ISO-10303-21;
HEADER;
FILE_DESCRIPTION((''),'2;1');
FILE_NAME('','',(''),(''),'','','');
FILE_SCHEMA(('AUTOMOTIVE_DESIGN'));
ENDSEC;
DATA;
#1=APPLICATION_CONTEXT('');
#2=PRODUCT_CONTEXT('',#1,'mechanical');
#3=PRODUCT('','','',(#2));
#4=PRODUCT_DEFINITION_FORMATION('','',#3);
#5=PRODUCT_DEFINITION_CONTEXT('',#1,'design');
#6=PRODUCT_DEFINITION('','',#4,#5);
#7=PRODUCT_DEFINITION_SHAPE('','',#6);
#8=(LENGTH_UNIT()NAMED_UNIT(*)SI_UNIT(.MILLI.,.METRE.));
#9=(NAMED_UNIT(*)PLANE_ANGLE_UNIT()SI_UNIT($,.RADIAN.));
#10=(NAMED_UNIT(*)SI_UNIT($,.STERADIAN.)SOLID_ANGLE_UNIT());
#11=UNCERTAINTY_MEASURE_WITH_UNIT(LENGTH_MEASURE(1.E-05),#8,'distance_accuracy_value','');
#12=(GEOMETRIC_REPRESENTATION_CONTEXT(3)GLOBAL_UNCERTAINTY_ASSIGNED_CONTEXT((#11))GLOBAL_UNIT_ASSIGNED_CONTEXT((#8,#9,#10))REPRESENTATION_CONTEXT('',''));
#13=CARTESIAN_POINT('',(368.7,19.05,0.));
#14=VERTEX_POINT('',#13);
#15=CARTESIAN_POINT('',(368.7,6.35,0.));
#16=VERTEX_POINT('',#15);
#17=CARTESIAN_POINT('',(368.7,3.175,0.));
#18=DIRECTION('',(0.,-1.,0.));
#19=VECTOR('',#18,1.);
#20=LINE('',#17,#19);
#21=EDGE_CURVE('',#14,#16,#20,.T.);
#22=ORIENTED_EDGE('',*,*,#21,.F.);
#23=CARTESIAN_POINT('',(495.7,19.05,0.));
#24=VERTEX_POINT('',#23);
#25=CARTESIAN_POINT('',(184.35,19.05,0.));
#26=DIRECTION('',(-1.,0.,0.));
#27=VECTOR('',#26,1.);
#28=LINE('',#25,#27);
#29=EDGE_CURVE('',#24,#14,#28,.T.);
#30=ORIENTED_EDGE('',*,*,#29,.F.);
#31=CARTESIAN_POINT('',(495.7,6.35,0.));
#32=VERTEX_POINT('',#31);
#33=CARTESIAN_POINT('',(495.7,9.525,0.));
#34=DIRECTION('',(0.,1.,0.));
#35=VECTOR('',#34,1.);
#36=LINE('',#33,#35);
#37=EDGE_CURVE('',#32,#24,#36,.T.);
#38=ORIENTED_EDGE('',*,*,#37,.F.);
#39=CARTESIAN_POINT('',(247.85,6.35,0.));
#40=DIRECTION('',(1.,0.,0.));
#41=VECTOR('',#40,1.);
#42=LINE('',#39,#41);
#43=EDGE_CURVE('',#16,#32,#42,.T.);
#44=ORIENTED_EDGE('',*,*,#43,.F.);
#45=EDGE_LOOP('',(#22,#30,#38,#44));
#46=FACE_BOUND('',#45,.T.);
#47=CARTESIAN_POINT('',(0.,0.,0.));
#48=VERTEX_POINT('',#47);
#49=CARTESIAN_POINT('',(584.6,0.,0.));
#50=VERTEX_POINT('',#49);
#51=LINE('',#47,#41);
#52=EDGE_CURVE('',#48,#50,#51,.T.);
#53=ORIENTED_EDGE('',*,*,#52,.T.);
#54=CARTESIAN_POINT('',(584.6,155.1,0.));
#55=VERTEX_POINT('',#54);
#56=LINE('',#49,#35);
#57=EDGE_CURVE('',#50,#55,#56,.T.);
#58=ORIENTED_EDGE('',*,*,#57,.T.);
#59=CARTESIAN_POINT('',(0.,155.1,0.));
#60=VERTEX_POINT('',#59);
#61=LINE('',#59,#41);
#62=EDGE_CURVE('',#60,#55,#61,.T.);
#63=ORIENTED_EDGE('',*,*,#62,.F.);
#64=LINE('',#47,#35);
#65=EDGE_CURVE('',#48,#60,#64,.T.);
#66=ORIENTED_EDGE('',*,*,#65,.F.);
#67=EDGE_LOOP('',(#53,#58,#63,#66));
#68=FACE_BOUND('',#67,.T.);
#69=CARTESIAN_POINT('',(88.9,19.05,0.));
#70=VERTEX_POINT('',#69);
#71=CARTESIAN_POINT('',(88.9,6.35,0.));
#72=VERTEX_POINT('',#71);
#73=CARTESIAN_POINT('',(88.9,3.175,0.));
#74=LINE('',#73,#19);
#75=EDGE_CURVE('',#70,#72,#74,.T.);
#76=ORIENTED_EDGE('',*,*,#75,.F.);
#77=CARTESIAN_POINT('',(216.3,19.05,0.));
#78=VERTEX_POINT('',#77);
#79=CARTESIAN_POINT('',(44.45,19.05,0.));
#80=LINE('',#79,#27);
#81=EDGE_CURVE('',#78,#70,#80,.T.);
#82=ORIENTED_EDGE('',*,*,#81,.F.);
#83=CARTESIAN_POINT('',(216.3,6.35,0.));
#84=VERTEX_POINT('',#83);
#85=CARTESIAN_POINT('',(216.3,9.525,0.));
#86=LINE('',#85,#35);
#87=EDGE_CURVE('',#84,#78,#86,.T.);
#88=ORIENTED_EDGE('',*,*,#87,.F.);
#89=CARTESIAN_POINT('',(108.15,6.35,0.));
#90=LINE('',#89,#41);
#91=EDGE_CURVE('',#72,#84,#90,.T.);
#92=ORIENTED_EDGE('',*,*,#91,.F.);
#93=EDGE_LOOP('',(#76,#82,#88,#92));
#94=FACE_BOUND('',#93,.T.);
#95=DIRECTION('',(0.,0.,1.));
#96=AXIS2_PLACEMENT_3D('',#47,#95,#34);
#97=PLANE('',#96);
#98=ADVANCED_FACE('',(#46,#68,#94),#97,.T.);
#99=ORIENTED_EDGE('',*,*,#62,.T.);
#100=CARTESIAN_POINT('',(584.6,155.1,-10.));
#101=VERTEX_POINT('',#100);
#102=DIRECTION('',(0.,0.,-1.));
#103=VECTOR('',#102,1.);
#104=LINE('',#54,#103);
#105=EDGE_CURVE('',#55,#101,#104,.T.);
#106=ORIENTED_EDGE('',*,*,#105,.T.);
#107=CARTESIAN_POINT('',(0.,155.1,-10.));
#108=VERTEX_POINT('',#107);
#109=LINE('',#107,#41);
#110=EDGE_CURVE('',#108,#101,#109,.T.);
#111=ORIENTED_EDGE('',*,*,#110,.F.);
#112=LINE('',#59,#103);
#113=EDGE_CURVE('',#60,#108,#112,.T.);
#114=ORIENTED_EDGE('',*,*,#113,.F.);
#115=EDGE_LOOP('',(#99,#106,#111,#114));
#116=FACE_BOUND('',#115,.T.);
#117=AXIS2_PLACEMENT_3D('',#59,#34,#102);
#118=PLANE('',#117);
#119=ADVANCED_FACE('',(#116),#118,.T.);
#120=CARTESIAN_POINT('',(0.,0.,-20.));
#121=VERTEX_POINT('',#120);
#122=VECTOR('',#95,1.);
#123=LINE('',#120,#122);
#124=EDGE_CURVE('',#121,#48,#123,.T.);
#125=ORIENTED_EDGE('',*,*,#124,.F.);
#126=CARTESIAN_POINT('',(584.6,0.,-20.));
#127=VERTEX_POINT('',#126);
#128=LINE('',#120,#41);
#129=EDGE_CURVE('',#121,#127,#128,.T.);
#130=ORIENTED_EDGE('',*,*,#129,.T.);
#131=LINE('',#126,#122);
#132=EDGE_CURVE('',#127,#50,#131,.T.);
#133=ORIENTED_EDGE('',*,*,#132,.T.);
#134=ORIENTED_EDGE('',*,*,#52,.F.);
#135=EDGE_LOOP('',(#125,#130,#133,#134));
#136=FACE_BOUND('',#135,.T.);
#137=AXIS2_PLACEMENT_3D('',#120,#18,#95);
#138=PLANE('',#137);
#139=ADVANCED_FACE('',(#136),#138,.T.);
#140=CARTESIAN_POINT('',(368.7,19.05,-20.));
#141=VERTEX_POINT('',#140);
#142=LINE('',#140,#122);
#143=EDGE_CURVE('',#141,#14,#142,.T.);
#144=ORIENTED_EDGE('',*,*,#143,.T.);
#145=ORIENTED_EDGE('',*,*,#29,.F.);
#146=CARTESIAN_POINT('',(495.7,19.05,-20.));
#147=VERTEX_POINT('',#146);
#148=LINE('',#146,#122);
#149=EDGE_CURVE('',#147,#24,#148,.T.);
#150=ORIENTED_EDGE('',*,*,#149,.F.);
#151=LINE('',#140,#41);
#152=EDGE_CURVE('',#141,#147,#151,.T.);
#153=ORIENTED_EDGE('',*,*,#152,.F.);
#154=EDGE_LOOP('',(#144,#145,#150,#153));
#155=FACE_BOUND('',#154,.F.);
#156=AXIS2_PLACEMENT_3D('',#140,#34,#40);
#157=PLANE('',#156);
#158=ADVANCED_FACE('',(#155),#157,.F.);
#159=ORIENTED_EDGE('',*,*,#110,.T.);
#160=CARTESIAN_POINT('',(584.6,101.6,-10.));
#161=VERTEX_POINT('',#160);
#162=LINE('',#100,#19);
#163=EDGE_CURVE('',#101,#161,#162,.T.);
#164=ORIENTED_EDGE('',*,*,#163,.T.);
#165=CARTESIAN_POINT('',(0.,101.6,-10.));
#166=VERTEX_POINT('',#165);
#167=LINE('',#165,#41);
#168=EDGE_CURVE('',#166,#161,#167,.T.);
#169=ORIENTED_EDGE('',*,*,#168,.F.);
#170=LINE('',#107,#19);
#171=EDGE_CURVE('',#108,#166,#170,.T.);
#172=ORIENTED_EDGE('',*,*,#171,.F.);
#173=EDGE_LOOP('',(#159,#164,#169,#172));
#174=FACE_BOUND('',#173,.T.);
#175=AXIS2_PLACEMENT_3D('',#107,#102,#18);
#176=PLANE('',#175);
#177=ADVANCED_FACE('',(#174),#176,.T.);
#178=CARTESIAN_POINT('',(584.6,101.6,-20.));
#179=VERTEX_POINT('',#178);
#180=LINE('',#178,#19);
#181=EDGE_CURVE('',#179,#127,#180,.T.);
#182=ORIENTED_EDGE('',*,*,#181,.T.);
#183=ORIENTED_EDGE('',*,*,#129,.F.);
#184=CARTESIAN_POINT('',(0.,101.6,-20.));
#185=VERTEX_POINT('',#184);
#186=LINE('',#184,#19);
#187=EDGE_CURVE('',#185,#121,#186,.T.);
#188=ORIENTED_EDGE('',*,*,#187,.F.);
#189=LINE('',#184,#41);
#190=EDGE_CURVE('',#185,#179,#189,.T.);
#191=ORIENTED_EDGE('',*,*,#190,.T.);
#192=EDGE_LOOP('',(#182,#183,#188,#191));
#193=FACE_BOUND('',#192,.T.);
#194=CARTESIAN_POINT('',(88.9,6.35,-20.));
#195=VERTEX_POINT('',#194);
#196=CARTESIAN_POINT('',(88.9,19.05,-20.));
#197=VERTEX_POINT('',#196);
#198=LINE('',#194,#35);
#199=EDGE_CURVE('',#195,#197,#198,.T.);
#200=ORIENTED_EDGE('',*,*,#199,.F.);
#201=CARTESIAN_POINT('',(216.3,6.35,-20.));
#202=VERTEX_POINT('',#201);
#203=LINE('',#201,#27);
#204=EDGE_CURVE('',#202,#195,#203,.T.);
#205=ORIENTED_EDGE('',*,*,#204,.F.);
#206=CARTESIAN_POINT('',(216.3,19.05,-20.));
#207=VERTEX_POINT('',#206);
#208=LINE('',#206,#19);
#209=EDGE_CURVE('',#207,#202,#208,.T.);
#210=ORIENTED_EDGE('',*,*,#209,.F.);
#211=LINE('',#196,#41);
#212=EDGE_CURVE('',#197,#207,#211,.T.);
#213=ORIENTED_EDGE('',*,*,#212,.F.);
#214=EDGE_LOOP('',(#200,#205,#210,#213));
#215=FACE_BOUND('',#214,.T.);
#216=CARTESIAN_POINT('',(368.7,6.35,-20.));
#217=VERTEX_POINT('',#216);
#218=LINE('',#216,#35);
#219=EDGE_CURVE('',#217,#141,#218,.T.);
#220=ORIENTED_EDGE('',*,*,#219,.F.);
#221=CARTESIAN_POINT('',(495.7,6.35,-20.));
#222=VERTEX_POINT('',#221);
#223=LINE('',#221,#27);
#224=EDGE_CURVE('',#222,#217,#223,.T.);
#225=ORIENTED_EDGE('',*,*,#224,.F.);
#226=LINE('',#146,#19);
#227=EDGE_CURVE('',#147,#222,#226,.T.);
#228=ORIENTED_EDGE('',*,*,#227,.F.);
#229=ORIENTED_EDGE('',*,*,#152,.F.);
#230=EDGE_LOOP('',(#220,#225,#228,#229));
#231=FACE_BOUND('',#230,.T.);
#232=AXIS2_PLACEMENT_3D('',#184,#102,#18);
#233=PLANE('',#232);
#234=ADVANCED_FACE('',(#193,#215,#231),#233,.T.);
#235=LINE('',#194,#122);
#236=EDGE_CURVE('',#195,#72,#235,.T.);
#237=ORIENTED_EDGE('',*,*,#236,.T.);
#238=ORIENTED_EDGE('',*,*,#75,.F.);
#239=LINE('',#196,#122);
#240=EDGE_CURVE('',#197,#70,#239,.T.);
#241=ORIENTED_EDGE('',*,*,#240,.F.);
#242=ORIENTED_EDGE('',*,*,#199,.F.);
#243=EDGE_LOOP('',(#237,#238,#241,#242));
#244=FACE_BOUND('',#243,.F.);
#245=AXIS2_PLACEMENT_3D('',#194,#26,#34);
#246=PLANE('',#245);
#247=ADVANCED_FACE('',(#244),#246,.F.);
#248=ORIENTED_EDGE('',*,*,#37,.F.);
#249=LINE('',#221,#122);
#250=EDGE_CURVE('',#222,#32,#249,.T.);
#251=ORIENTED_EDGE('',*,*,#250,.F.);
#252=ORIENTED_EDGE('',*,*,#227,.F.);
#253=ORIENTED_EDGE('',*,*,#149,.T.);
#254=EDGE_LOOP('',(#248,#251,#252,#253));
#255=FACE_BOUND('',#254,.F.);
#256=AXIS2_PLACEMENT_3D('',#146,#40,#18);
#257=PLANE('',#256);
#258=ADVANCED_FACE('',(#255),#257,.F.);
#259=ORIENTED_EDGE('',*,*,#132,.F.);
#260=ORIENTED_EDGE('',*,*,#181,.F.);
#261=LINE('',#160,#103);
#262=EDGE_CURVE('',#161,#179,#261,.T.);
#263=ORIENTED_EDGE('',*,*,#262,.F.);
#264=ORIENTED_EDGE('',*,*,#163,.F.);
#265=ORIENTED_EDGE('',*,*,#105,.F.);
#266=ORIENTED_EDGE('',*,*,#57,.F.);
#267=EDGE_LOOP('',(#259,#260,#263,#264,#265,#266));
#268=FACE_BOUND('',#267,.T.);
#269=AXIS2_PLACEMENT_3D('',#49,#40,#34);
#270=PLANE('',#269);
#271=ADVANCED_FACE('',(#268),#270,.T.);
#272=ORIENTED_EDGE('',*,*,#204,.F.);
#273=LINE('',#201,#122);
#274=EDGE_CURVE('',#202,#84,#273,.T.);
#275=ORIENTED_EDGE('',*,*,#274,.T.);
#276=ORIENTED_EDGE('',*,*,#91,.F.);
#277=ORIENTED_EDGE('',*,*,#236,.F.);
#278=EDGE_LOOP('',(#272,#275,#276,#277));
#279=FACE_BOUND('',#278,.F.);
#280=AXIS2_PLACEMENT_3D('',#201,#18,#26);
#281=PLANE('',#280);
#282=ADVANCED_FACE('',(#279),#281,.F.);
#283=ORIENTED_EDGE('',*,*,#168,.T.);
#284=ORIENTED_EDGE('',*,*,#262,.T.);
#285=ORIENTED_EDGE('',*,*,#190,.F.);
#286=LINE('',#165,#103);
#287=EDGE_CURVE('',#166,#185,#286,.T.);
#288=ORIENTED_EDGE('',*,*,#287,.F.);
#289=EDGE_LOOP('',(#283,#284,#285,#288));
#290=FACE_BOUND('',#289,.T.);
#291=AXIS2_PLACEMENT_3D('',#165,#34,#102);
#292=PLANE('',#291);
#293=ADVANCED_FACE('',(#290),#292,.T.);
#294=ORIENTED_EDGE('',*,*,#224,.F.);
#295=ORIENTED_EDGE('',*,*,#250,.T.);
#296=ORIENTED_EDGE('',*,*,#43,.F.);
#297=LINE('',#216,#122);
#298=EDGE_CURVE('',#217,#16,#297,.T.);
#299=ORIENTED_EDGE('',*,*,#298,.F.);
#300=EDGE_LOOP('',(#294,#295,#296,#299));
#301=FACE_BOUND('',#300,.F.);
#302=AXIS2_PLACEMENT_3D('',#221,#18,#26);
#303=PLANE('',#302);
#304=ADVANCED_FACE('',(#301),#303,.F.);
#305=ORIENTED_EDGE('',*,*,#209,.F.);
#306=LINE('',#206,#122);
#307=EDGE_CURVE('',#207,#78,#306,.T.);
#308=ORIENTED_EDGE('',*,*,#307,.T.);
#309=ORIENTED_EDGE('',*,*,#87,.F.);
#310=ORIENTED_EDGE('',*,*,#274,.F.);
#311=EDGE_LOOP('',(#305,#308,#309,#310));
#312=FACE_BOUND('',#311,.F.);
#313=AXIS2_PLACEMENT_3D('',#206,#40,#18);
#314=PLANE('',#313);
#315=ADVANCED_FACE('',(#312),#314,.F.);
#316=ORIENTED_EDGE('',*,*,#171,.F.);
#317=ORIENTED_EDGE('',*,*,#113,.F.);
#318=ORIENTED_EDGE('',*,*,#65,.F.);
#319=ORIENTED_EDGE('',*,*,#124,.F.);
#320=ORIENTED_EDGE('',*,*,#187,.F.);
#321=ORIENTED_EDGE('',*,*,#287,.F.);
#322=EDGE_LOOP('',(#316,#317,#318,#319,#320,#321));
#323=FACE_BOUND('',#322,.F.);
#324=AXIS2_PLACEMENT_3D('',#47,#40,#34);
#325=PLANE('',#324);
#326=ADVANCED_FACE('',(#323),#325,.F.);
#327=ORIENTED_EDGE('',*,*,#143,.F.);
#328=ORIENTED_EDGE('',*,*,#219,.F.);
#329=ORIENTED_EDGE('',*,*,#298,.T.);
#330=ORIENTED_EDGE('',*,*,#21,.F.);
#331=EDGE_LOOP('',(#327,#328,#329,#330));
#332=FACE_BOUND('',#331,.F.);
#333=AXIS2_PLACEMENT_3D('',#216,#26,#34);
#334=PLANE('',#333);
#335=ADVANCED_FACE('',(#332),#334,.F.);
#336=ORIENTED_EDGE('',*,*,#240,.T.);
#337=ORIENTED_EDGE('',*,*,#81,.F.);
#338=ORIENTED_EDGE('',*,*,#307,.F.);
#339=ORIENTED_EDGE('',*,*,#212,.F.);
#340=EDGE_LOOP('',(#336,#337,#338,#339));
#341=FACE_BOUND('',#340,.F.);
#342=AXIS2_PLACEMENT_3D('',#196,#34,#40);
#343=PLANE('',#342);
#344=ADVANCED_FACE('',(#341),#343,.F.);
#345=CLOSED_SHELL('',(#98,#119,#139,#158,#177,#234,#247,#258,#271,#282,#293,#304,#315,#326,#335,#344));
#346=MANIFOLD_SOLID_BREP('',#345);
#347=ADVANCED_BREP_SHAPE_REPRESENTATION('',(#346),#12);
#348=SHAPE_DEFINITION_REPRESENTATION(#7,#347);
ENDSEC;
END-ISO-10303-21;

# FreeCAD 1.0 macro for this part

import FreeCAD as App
import Part
import Sketcher

V = App.Vector
Q = App.Units.Quantity


def add_polygon(sketch, points):
    """Adds a closed chain of lines whose ends are joined by coincident constraints."""
    first, n = sketch.GeometryCount, len(points)
    for a, b in zip(points, points[1:] + points[:1]):
        sketch.addGeometry(Part.LineSegment(App.Vector(*a, 0), App.Vector(*b, 0)), False)
    for i in range(n):
        sketch.addConstraint(Sketcher.Constraint("Coincident", first + i, 2, first + (i + 1) % n, 1))

doc = App.newDocument("Part")
body = doc.addObject("PartDesign::Body", "Body")

sketch1 = body.newObject("Sketcher::SketchObject", "Sketch")
sketch1.AttachmentSupport = (doc.getObject("YZ_Plane"), [""])
sketch1.MapMode = "FlatFace"
add_polygon(sketch1, [(155, 0), (0, 0), (0, -20), (102, -20), (102, -10), (155, -10)])
sketch1.addConstraint([
    Sketcher.Constraint("Horizontal", 0),
    Sketcher.Constraint("Vertical", 1),
    Sketcher.Constraint("Horizontal", 2),
    Sketcher.Constraint("Vertical", 3),
    Sketcher.Constraint("Horizontal", 4),
    Sketcher.Constraint("Vertical", 5),
    Sketcher.Constraint("Coincident", 0, 2, -1, 1),
    Sketcher.Constraint("Equal", 3, 5),
    Sketcher.Constraint("DistanceX", 2, 1, 2, 2, Q("4 in")),
    Sketcher.Constraint("DistanceX", 0, 2, 0, 1, Q("6.1063 in")),
    Sketcher.Constraint("DistanceY", 1, 2, 1, 1, Q("0.7874 in")),
])
pad1 = body.newObject("PartDesign::Pad", "Pad")
pad1.Profile = sketch1
pad1.Length = 584.6

sketch2 = body.newObject("Sketcher::SketchObject", "Sketch001")
sketch2.AttachmentSupport = (doc.getObject("XY_Plane"), [""])
sketch2.MapMode = "FlatFace"
sketch2.AttachmentOffset = App.Placement(V(0, 0, -0.7874016 * 25.4), App.Rotation())
add_polygon(sketch2, [(496, 6), (369, 6), (369, 19), (496, 19)])
sketch2.addConstraint([
    Sketcher.Constraint("Horizontal", 0),
    Sketcher.Constraint("Vertical", 1),
    Sketcher.Constraint("Horizontal", 2),
    Sketcher.Constraint("Vertical", 3),
    Sketcher.Constraint("DistanceX", 0, 2, 0, 1, Q("5 in")),
    Sketcher.Constraint("DistanceY", 1, 1, 1, 2, Q("0.5 in")),
    Sketcher.Constraint("DistanceY", -1, 1, 0, 2, Q("0.25 in")),
    Sketcher.Constraint("DistanceX", -1, 1, 0, 2, 368.7),
])
pocket1 = body.newObject("PartDesign::Pocket", "Pocket")
pocket1.Profile = sketch2
pocket1.Length = Q("5 in")
pocket1.Reversed = True

sketch3 = body.newObject("Sketcher::SketchObject", "Sketch002")
sketch3.AttachmentSupport = (doc.getObject("XY_Plane"), [""])
sketch3.MapMode = "FlatFace"
sketch3.AttachmentOffset = App.Placement(V(0, 0, -0.7874016 * 25.4), App.Rotation())
add_polygon(sketch3, [(216, 6), (89, 6), (89, 19), (216, 19)])
sketch3.addConstraint([
    Sketcher.Constraint("Horizontal", 0),
    Sketcher.Constraint("Vertical", 1),
    Sketcher.Constraint("Horizontal", 2),
    Sketcher.Constraint("Vertical", 3),
    Sketcher.Constraint("DistanceY", 1, 1, 1, 2, Q("0.5 in")),
    Sketcher.Constraint("DistanceX", -1, 1, 0, 2, Q("3.5 in")),
    Sketcher.Constraint("DistanceY", -1, 1, 0, 2, Q("0.25 in")),
    Sketcher.Constraint("DistanceX", 0, 2, 0, 1, 127.4),
])
pocket2 = body.newObject("PartDesign::Pocket", "Pocket001")
pocket2.Profile = sketch3
pocket2.Length = Q("5 in")
pocket2.Reversed = True

doc.recompute()
